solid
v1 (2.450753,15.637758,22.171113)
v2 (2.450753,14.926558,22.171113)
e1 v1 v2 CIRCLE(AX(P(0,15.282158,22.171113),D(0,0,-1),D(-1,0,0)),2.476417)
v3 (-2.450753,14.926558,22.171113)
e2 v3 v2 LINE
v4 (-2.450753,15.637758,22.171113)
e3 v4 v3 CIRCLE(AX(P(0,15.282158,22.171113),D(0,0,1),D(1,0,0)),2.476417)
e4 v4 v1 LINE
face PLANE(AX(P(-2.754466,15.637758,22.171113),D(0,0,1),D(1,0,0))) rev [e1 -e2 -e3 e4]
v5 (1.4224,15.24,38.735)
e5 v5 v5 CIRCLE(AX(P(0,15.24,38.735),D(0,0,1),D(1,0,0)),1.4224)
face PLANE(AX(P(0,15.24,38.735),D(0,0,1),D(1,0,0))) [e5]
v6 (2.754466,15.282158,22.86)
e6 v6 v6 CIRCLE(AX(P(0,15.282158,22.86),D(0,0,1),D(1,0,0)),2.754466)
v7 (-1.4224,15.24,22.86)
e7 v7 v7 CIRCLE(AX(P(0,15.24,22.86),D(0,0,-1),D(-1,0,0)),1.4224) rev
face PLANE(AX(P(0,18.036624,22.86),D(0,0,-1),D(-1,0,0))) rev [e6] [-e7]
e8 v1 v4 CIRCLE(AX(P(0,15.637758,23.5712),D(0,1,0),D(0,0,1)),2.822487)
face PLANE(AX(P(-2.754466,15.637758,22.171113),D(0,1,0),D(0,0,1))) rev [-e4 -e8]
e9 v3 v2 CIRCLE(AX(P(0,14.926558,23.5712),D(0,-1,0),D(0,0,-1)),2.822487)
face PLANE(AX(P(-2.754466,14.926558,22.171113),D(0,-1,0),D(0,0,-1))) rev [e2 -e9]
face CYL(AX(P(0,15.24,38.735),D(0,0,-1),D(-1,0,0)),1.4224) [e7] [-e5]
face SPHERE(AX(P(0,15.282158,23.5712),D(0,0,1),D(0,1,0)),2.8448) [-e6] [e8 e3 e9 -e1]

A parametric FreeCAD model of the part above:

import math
import FreeCAD as App
import Part
import Sketcher
from FreeCAD import Vector
Q = App.Units.Quantity

doc = App.newDocument("Part")
params = doc.addObject("Spreadsheet::Sheet", "Params")
for row, (alias, value) in enumerate([
    ("sketch1_radius", "0.112 in"),
    ("sketch1_height", "0.084 in"),
    ("revolution_angle", "360 deg"),
    ("sketch2_diameter", "0.112 in"),
    ("pad1_length", "0.625 in"),
    ("sketch3_radius", "0.112 in"),
    ("sketch3_width", "0.028 in"),
    ("sketch3_height", "0.056 in"),
], start=1):
    params.set(f"A{row}", alias)
    params.set(f"B{row}", "=" + value)
    params.setAlias(f"B{row}", alias)

body = doc.addObject("PartDesign::Body", "Body")

# Sketch on YZ plane
sketch1 = body.newObject("Sketcher::SketchObject", "Sketch")
sketch1.AttachmentSupport = (doc.getObject("YZ_Plane"), [""])
sketch1.MapMode = "FlatFace"
sketch1.addGeometry([
    Part.LineSegment(Vector(15.282158, 22.86, 0), Vector(15.282158, 20.7264, 0)),
    Part.ArcOfCircle(Part.Circle(Vector(15.282158, 23.5712, 0), Vector(0, 0, 1), 2.8448), math.radians(-90), math.radians(-14.477512)),
    Part.LineSegment(Vector(18.036624, 22.86, 0), Vector(15.282158, 22.86, 0)),
], False)
sketch1.addGeometry(Part.LineSegment(Vector(15.282158, 23.5712, 0), Vector(15.282158, 20.7264, 0)), True)  # axis
sketch1.addConstraint([
    Sketcher.Constraint("Coincident", 0, 2, 1, 1),
    Sketcher.Constraint("Coincident", 1, 2, 2, 1),
    Sketcher.Constraint("Coincident", 2, 2, 0, 1),
    Sketcher.Constraint("Vertical", 0),
    Sketcher.Constraint("Horizontal", 2),
    Sketcher.Constraint("Vertical", 3),
    Sketcher.Constraint("Coincident", 3, 1, 1, 3),
    Sketcher.Constraint("Coincident", 3, 2, 0, 2),
    Sketcher.Constraint("Radius", 1, Q("0.112 in")),
    Sketcher.Constraint("DistanceY", -1, 1, 1, 2, Q("0.9 in")),
    Sketcher.Constraint("DistanceY", 0, 2, 0, 1, Q("0.084 in")),
    Sketcher.Constraint("DistanceX", -1, 1, 1, 3, 15.282158),
])
sketch1.setExpression("Constraints[8]", "Params.sketch1_radius")
sketch1.setExpression("Constraints[10]", "Params.sketch1_height")
revolution = body.newObject("PartDesign::Revolution", "Revolution")
revolution.Profile = sketch1
revolution.ReferenceAxis = (sketch1, ["Axis0"])
revolution.setExpression("Angle", "Params.revolution_angle")

# Sketch on XY plane
sketch2 = body.newObject("Sketcher::SketchObject", "Sketch001")
sketch2.AttachmentSupport = (doc.getObject("XY_Plane"), [""])
sketch2.MapMode = "FlatFace"
sketch2.AttachmentOffset = App.Placement(Vector(0, 0, 0.9 * 25.4), App.Rotation())
sketch2.addGeometry(Part.Circle(Vector(0, 15.24, 0), Vector(0, 0, 1), 1.4224), False)
sketch2.addConstraint([
    Sketcher.Constraint("PointOnObject", 0, 3, -2),
    Sketcher.Constraint("Diameter", 0, Q("0.112 in")),
    Sketcher.Constraint("DistanceY", -1, 1, 0, 3, Q("0.6 in")),
])
sketch2.setExpression("Constraints[1]", "Params.sketch2_diameter")
pad1 = body.newObject("PartDesign::Pad", "Pad")
pad1.Profile = sketch2
pad1.setExpression("Length", "Params.pad1_length")

# Sketch on YZ plane
sketch3 = body.newObject("Sketcher::SketchObject", "Sketch002")
sketch3.AttachmentSupport = (doc.getObject("YZ_Plane"), [""])
sketch3.MapMode = "FlatFace"
sketch3.addGeometry([
    Part.LineSegment(Vector(14.926558, 22.171113, 0), Vector(14.926558, 20.748713, 0)),
    Part.ArcOfCircle(Part.Circle(Vector(15.282158, 23.5712, 0), Vector(0, 0, 1), 2.8448), math.radians(-97.180756), math.radians(-82.819244)),
    Part.LineSegment(Vector(15.637758, 20.748713, 0), Vector(15.637758, 22.171113, 0)),
    Part.LineSegment(Vector(15.637758, 22.171113, 0), Vector(14.926558, 22.171113, 0)),
], False)
sketch3.addConstraint([
    Sketcher.Constraint("Coincident", 0, 2, 1, 1),
    Sketcher.Constraint("Coincident", 1, 2, 2, 1),
    Sketcher.Constraint("Coincident", 2, 2, 3, 1),
    Sketcher.Constraint("Coincident", 3, 2, 0, 1),
    Sketcher.Constraint("Vertical", 0),
    Sketcher.Constraint("Vertical", 2),
    Sketcher.Constraint("Horizontal", 3),
    Sketcher.Constraint("Horizontal", 0, 2, 1, 2),
    Sketcher.Constraint("Radius", 1, Q("0.112 in")),
    Sketcher.Constraint("DistanceX", 3, 2, 3, 1, Q("0.028 in")),
    Sketcher.Constraint("DistanceY", 0, 2, 0, 1, Q("0.056 in")),
    Sketcher.Constraint("DistanceY", -1, 1, 1, 3, Q("0.928 in")),
    Sketcher.Constraint("DistanceX", -1, 1, 1, 3, 15.282158),
])
sketch3.setExpression("Constraints[8]", "Params.sketch3_radius")
sketch3.setExpression("Constraints[9]", "Params.sketch3_width")
sketch3.setExpression("Constraints[10]", "Params.sketch3_height")
pocket1 = body.newObject("PartDesign::Pocket", "Pocket")
pocket1.Profile = sketch3
pocket1.Type = "ThroughAll"
doc.recompute()

mirrored = body.newObject("PartDesign::Mirrored", "Mirrored")
mirrored.Originals = [pocket1]
mirrored.MirrorPlane = (doc.getObject("YZ_Plane"), [""])
body.Tip = mirrored

doc.recompute()
